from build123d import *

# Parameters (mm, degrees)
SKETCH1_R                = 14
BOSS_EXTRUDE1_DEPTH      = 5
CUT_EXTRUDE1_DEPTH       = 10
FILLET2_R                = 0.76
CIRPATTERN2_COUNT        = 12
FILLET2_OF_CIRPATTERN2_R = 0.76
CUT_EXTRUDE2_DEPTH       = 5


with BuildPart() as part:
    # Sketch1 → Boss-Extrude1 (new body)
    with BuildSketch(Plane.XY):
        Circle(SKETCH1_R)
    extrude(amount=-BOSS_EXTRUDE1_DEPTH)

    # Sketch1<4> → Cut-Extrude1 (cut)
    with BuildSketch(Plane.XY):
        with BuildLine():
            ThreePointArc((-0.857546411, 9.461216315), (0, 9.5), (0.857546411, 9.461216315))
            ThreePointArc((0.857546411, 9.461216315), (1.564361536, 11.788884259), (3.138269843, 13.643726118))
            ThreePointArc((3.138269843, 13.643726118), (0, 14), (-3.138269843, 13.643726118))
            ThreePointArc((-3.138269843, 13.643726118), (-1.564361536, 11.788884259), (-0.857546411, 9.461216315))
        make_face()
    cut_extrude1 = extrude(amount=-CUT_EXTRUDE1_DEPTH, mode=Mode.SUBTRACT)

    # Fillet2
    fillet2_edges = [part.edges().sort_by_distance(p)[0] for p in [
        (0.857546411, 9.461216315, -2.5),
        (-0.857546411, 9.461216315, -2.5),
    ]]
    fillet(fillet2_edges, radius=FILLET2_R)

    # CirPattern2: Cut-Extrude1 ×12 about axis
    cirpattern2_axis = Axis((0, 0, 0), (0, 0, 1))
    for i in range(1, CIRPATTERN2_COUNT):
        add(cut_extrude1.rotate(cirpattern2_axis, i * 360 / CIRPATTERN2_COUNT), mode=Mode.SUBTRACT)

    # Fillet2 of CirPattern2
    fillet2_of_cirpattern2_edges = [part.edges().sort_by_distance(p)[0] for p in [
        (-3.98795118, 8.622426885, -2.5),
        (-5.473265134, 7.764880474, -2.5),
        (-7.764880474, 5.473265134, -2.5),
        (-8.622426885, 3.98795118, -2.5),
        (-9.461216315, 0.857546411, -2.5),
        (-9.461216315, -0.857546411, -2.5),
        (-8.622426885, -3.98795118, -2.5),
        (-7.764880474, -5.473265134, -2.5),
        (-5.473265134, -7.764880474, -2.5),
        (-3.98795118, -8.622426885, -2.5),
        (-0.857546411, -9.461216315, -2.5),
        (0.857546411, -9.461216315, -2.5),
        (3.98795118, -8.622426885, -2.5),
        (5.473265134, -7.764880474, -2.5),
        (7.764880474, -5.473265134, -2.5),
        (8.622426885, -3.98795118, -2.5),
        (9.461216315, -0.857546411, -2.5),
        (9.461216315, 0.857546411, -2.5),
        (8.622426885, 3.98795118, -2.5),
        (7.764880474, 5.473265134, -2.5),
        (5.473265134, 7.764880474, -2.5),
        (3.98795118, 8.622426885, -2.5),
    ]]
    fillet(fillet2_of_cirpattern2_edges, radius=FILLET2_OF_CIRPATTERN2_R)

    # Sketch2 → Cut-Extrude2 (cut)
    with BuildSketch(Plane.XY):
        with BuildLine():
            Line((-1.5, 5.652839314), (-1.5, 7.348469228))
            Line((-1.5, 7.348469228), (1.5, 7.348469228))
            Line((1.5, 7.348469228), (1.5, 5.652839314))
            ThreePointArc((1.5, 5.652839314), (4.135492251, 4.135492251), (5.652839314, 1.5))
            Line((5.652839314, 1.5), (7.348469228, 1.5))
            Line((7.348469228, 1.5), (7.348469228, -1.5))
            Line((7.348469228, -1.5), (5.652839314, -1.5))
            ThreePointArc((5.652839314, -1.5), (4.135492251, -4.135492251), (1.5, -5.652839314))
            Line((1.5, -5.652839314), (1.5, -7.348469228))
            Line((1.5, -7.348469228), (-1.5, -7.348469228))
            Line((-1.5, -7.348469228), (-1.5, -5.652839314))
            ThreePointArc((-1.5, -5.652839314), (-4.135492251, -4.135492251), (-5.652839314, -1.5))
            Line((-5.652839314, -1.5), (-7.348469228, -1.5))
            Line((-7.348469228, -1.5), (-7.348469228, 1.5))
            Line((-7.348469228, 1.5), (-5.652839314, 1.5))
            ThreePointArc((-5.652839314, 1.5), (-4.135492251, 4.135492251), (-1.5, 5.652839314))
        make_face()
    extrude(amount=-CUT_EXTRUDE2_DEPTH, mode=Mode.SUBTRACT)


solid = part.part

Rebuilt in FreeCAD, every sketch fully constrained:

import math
import FreeCAD as App
import Part
import Sketcher
Q = App.Units.Quantity


def edges_at(feature, points):
    """Names of the edges that pass closest to the given points."""
    edges = feature.Shape.Edges
    near = lambda p: min(range(len(edges)), key=lambda i: edges[i].distToShape(Part.Vertex(*p))[0])
    return sorted({f"Edge{near(p) + 1}" for p in points})

doc = App.newDocument("Part")
body = doc.addObject("PartDesign::Body", "Body")

# Sketch on XY plane
sketch1 = doc.addObject("Sketcher::SketchObject", "Sketch")
body.addObject(sketch1)
sketch1.AttachmentSupport = (doc.XY_Plane, [""])
sketch1.MapMode = "FlatFace"
sketch1.addGeometry(Part.Circle(App.Vector(0, 0, 0), App.Vector(0, 0, 1), 14), False)
sketch1.addConstraint([
    Sketcher.Constraint("Coincident", 0, 3, -1, 1),
    Sketcher.Constraint("Diameter", 0, Q("28 mm")),
])
pad1 = doc.addObject("PartDesign::Pad", "Pad")
body.addObject(pad1)
pad1.Profile = sketch1
pad1.Length = 5
pad1.Reversed = True

# Sketch on XY plane
sketch2 = doc.addObject("Sketcher::SketchObject", "Sketch001")
body.addObject(sketch2)
sketch2.AttachmentSupport = (doc.XY_Plane, [""])
sketch2.MapMode = "FlatFace"
sketch2.addGeometry([
    Part.ArcOfCircle(Part.Circle(App.Vector(0, 0, 0), App.Vector(0, 0, 1), 9.5), math.radians(84.820972), math.radians(95.179028)),
    Part.ArcOfCircle(Part.Circle(App.Vector(6.824822, 8.920354, 0), App.Vector(0, 0, 1), 5.991737), math.radians(127.97174), math.radians(174.820972)),
    Part.ArcOfCircle(Part.Circle(App.Vector(0, 0, 0), App.Vector(0, 0, 1), 14), math.radians(77.046387), math.radians(102.953613)),
    Part.ArcOfCircle(Part.Circle(App.Vector(-6.824822, 8.920354, 0), App.Vector(0, 0, 1), 5.991737), math.radians(5.179028), math.radians(52.02826)),
], False)
sketch2.addConstraint([
    Sketcher.Constraint("Coincident", 0, 1, 1, 2),
    Sketcher.Constraint("Coincident", 1, 1, 2, 1),
    Sketcher.Constraint("Coincident", 2, 2, 3, 2),
    Sketcher.Constraint("Coincident", 3, 1, 0, 2),
    Sketcher.Constraint("Coincident", 0, 3, -1, 1),
    Sketcher.Constraint("Coincident", 2, 3, -1, 1),
    Sketcher.Constraint("Equal", 1, 3),
    Sketcher.Constraint("Symmetric", 1, 3, 3, 3, -2),
    Sketcher.Constraint("Radius", 2, Q("14 mm")),
    Sketcher.Constraint("Radius", 0, Q("9.5 mm")),
    Sketcher.Constraint("Radius", 1, Q("5.991737 mm")),
    Sketcher.Constraint("DistanceX", -1, 1, 1, 1, Q("3.13827 mm")),
    Sketcher.Constraint("DistanceX", 3, 3, 0, 1, Q("7.682369 mm")),
])
pocket1 = doc.addObject("PartDesign::Pocket", "Pocket")
body.addObject(pocket1)
pocket1.Profile = sketch2
pocket1.Length = 10
doc.recompute()

fillet = doc.addObject("PartDesign::Fillet", "Fillet")
body.addObject(fillet)
fillet.Base = (pocket1, edges_at(pocket1, [(0.858, 9.461, -2.5), (-0.858, 9.461, -2.5)]))
fillet.Radius = 0.76
doc.recompute()

polarpattern = doc.addObject("PartDesign::PolarPattern", "PolarPattern")
body.addObject(polarpattern)
polarpattern.Originals = [pocket1]
polarpattern.Axis = (doc.Z_Axis, [""])
polarpattern.Angle = 360
polarpattern.Occurrences = 12
body.Tip = polarpattern
doc.recompute()

fillet2 = doc.addObject("PartDesign::Fillet", "Fillet001")
body.addObject(fillet2)
fillet2.Base = (polarpattern, edges_at(polarpattern, [
    (-3.988, 8.622, -2.5),
    (-5.473, 7.765, -2.5),
    (-7.765, 5.473, -2.5),
    (-8.622, 3.988, -2.5),
    (-9.461, 0.858, -2.5),
    (-9.461, -0.858, -2.5),
    (-8.622, -3.988, -2.5),
    (-7.765, -5.473, -2.5),
    (-5.473, -7.765, -2.5),
    (-3.988, -8.622, -2.5),
    (-0.858, -9.461, -2.5),
    (0.858, -9.461, -2.5),
    (3.988, -8.622, -2.5),
    (5.473, -7.765, -2.5),
    (7.765, -5.473, -2.5),
    (8.622, -3.988, -2.5),
    (9.461, -0.858, -2.5),
    (9.461, 0.858, -2.5),
    (8.622, 3.988, -2.5),
    (7.765, 5.473, -2.5),
    (5.473, 7.765, -2.5),
    (3.988, 8.622, -2.5),
]))
fillet2.Radius = 0.76

# Sketch on XY plane
sketch3 = doc.addObject("Sketcher::SketchObject", "Sketch002")
body.addObject(sketch3)
sketch3.AttachmentSupport = (doc.XY_Plane, [""])
sketch3.MapMode = "FlatFace"
sketch3.addGeometry([
    Part.LineSegment(App.Vector(-1.5, 7.348469, 0), App.Vector(-1.5, 5.652839, 0)),  # 0
    Part.ArcOfCircle(Part.Circle(App.Vector(0, 0, 0), App.Vector(0, 0, 1), 5.848469), math.radians(104.861144), math.radians(165.138856)),  # 1
    Part.LineSegment(App.Vector(-5.652839, 1.5, 0), App.Vector(-7.348469, 1.5, 0)),  # 2
    Part.LineSegment(App.Vector(-7.348469, 1.5, 0), App.Vector(-7.348469, -1.5, 0)),  # 3
    Part.LineSegment(App.Vector(-7.348469, -1.5, 0), App.Vector(-5.652839, -1.5, 0)),  # 4
    Part.ArcOfCircle(Part.Circle(App.Vector(0, 0, 0), App.Vector(0, 0, 1), 5.848469), math.radians(-165.138856), math.radians(-104.861144)),  # 5
    Part.LineSegment(App.Vector(-1.5, -5.652839, 0), App.Vector(-1.5, -7.348469, 0)),  # 6
    Part.LineSegment(App.Vector(-1.5, -7.348469, 0), App.Vector(1.5, -7.348469, 0)),  # 7
    Part.LineSegment(App.Vector(1.5, -7.348469, 0), App.Vector(1.5, -5.652839, 0)),  # 8
    Part.ArcOfCircle(Part.Circle(App.Vector(0, 0, 0), App.Vector(0, 0, 1), 5.848469), math.radians(-75.138856), math.radians(-14.861144)),  # 9
    Part.LineSegment(App.Vector(5.652839, -1.5, 0), App.Vector(7.348469, -1.5, 0)),  # 10
    Part.LineSegment(App.Vector(7.348469, -1.5, 0), App.Vector(7.348469, 1.5, 0)),  # 11
    Part.LineSegment(App.Vector(7.348469, 1.5, 0), App.Vector(5.652839, 1.5, 0)),  # 12
    Part.ArcOfCircle(Part.Circle(App.Vector(0, 0, 0), App.Vector(0, 0, 1), 5.848469), math.radians(14.861144), math.radians(75.138856)),  # 13
    Part.LineSegment(App.Vector(1.5, 5.652839, 0), App.Vector(1.5, 7.348469, 0)),  # 14
    Part.LineSegment(App.Vector(1.5, 7.348469, 0), App.Vector(-1.5, 7.348469, 0)),  # 15
], False)
sketch3.addConstraint([
    Sketcher.Constraint("Coincident", 0, 2, 1, 1),
    Sketcher.Constraint("Coincident", 1, 2, 2, 1),
    Sketcher.Constraint("Coincident", 2, 2, 3, 1),
    Sketcher.Constraint("Coincident", 3, 2, 4, 1),
    Sketcher.Constraint("Coincident", 4, 2, 5, 1),
    Sketcher.Constraint("Coincident", 5, 2, 6, 1),
    Sketcher.Constraint("Coincident", 6, 2, 7, 1),
    Sketcher.Constraint("Coincident", 7, 2, 8, 1),
    Sketcher.Constraint("Coincident", 8, 2, 9, 1),
    Sketcher.Constraint("Coincident", 9, 2, 10, 1),
    Sketcher.Constraint("Coincident", 10, 2, 11, 1),
    Sketcher.Constraint("Coincident", 11, 2, 12, 1),
    Sketcher.Constraint("Coincident", 12, 2, 13, 1),
    Sketcher.Constraint("Coincident", 13, 2, 14, 1),
    Sketcher.Constraint("Coincident", 14, 2, 15, 1),
    Sketcher.Constraint("Coincident", 15, 2, 0, 1),
    Sketcher.Constraint("Vertical", 0),
    Sketcher.Constraint("Horizontal", 2),
    Sketcher.Constraint("Vertical", 3),
    Sketcher.Constraint("Horizontal", 4),
    Sketcher.Constraint("Vertical", 6),
    Sketcher.Constraint("Horizontal", 7),
    Sketcher.Constraint("Vertical", 8),
    Sketcher.Constraint("Horizontal", 10),
    Sketcher.Constraint("Vertical", 11),
    Sketcher.Constraint("Horizontal", 12),
    Sketcher.Constraint("Vertical", 14),
    Sketcher.Constraint("Horizontal", 15),
    Sketcher.Constraint("Coincident", 1, 3, -1, 1),
    Sketcher.Constraint("Coincident", 5, 3, -1, 1),
    Sketcher.Constraint("Coincident", 9, 3, -1, 1),
    Sketcher.Constraint("Coincident", 13, 3, -1, 1),
    Sketcher.Constraint("Equal", 1, 5),
    Sketcher.Constraint("Equal", 5, 9),
    Sketcher.Constraint("Equal", 9, 13),
    Sketcher.Constraint("Symmetric", 2, 2, 10, 2, -1, 1),
    Sketcher.Constraint("Symmetric", 6, 2, 14, 2, -1, 1),
    Sketcher.Constraint("Horizontal", 5, 2, 8, 2),
    Sketcher.Constraint("Horizontal", 4, 2, 9, 2),
    Sketcher.Constraint("Horizontal", 2, 2, 11, 2),
    Sketcher.Constraint("Horizontal", 0, 2, 13, 2),
    Sketcher.Constraint("Equal", 12, 0),
    Sketcher.Constraint("Equal", 15, 3),
    Sketcher.Constraint("DistanceX", 7, 1, 7, 2, Q("3 mm")),
    Sketcher.Constraint("Radius", 1, Q("5.848469 mm")),
    Sketcher.Constraint("DistanceX", 2, 2, 2, 1, Q("1.69563 mm")),
])
pocket2 = doc.addObject("PartDesign::Pocket", "Pocket001")
body.addObject(pocket2)
pocket2.Profile = sketch3
pocket2.Length = 5

doc.recompute()
